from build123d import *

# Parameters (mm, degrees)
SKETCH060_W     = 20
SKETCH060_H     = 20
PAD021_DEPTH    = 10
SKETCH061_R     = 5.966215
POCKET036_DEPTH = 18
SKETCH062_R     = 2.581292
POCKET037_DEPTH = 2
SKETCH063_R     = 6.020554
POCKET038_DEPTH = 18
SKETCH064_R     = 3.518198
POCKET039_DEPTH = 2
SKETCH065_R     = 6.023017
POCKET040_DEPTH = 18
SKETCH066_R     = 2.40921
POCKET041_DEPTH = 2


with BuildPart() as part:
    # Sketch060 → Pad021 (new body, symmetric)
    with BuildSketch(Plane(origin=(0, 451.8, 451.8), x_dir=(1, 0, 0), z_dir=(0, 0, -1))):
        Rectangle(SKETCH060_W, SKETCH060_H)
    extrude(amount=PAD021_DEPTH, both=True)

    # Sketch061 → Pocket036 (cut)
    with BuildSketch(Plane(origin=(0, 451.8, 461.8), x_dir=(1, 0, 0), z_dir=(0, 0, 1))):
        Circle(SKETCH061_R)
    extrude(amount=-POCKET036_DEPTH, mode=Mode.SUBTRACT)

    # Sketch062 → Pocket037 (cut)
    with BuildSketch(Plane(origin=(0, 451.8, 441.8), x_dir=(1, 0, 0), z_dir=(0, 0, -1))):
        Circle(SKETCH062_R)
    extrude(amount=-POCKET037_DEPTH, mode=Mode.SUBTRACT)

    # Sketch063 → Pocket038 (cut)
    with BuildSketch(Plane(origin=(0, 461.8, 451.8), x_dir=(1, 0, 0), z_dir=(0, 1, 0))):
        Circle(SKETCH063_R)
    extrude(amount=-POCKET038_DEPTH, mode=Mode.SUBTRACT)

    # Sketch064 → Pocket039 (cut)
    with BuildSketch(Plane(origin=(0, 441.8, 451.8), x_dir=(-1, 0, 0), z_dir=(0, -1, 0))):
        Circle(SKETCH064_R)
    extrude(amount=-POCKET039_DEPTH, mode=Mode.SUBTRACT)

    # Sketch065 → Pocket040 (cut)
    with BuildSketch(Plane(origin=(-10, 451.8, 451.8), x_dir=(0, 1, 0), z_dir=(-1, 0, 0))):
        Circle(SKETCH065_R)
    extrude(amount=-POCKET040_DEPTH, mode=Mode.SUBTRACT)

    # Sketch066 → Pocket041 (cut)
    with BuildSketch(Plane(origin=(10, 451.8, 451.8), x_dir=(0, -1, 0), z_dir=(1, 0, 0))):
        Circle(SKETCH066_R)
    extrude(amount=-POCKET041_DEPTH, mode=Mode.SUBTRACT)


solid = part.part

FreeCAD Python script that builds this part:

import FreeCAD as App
import Part
import Sketcher
Q = App.Units.Quantity


def add_polygon(sketch, points):
    """Adds a closed chain of lines whose ends are joined by coincident constraints."""
    first, n = sketch.GeometryCount, len(points)
    for a, b in zip(points, points[1:] + points[:1]):
        sketch.addGeometry(Part.LineSegment(App.Vector(*a, 0), App.Vector(*b, 0)), False)
    for i in range(n):
        sketch.addConstraint(Sketcher.Constraint("Coincident", first + i, 2, first + (i + 1) % n, 1))

doc = App.newDocument("Part")
params = doc.addObject("Spreadsheet::Sheet", "Params")
for row, (alias, value) in enumerate([
    ("sketch1_width", "20 mm"),
    ("pad1_length", "20 mm"),
    ("pocket1_length", "18 mm"),
    ("pocket2_length", "2 mm"),
    ("pocket3_length", "18 mm"),
    ("pocket4_length", "2 mm"),
    ("pocket5_length", "18 mm"),
    ("pocket6_length", "2 mm"),
], start=1):
    params.set(f"A{row}", alias)
    params.set(f"B{row}", "=" + value)
    params.setAlias(f"B{row}", alias)

body = doc.addObject("PartDesign::Body", "Body")

sketch1 = body.newObject("Sketcher::SketchObject", "Sketch")
sketch1.AttachmentSupport = (doc.getObject("XY_Plane"), [""])
sketch1.MapMode = "FlatFace"
sketch1.AttachmentOffset = App.Placement(App.Vector(0, 0, 451.8), App.Rotation())
add_polygon(sketch1, [(-10, 441.8), (-10, 461.8), (10, 461.8), (10, 441.8)])
sketch1.addConstraint([
    Sketcher.Constraint("Vertical", 0),
    Sketcher.Constraint("Horizontal", 1),
    Sketcher.Constraint("Vertical", 2),
    Sketcher.Constraint("Horizontal", 3),
    Sketcher.Constraint("Equal", 3, 0),
    Sketcher.Constraint("DistanceX", 1, 1, 1, 2, Q("20 mm")),
    Sketcher.Constraint("DistanceX", 0, 2, -1, 1, Q("10 mm")),
    Sketcher.Constraint("DistanceY", -1, 1, 0, 2, Q("461.8 mm")),
])
sketch1.setExpression("Constraints[9]", "Params.sketch1_width")
pad1 = body.newObject("PartDesign::Pad", "Pad")
pad1.Profile = sketch1
pad1.setExpression("Length", "Params.pad1_length")
pad1.Midplane = True

sketch2 = body.newObject("Sketcher::SketchObject", "Sketch001")
sketch2.AttachmentSupport = (doc.getObject("XY_Plane"), [""])
sketch2.MapMode = "FlatFace"
sketch2.AttachmentOffset = App.Placement(App.Vector(0, 0, 461.8), App.Rotation())
sketch2.addGeometry(Part.Circle(App.Vector(0, 451.8, 0), App.Vector(0, 0, 1), 5.966215), False)
sketch2.addConstraint([
    Sketcher.Constraint("PointOnObject", 0, 3, -2),
    Sketcher.Constraint("DistanceY", -1, 1, 0, 3, Q("451.8 mm")),
    Sketcher.Constraint("Diameter", 0, Q("11.93243 mm")),
])
pocket1 = body.newObject("PartDesign::Pocket", "Pocket")
pocket1.Profile = sketch2
pocket1.setExpression("Length", "Params.pocket1_length")

sketch3 = body.newObject("Sketcher::SketchObject", "Sketch002")
sketch3.AttachmentSupport = (doc.getObject("XY_Plane"), [""])
sketch3.MapMode = "FlatFace"
sketch3.AttachmentOffset = App.Placement(App.Vector(0, 0, 441.8), App.Rotation())
sketch3.addGeometry(Part.Circle(App.Vector(0, 451.8, 0), App.Vector(0, 0, 1), 2.581292), False)
sketch3.addConstraint([
    Sketcher.Constraint("PointOnObject", 0, 3, -2),
    Sketcher.Constraint("DistanceY", -1, 1, 0, 3, Q("451.8 mm")),
    Sketcher.Constraint("Diameter", 0, Q("5.162584 mm")),
])
pocket2 = body.newObject("PartDesign::Pocket", "Pocket001")
pocket2.Profile = sketch3
pocket2.setExpression("Length", "Params.pocket2_length")
pocket2.Reversed = True

sketch4 = body.newObject("Sketcher::SketchObject", "Sketch003")
sketch4.AttachmentSupport = (doc.getObject("XZ_Plane"), [""])
sketch4.MapMode = "FlatFace"
sketch4.AttachmentOffset = App.Placement(App.Vector(0, 0, -461.8), App.Rotation())
sketch4.addGeometry(Part.Circle(App.Vector(0, 451.8, 0), App.Vector(0, 0, 1), 6.020554), False)
sketch4.addConstraint([
    Sketcher.Constraint("PointOnObject", 0, 3, -2),
    Sketcher.Constraint("DistanceY", -1, 1, 0, 3, Q("451.8 mm")),
    Sketcher.Constraint("Diameter", 0, Q("12.041108 mm")),
])
pocket3 = body.newObject("PartDesign::Pocket", "Pocket002")
pocket3.Profile = sketch4
pocket3.setExpression("Length", "Params.pocket3_length")
pocket3.Reversed = True

sketch5 = body.newObject("Sketcher::SketchObject", "Sketch004")
sketch5.AttachmentSupport = (doc.getObject("XZ_Plane"), [""])
sketch5.MapMode = "FlatFace"
sketch5.AttachmentOffset = App.Placement(App.Vector(0, 0, -441.8), App.Rotation())
sketch5.addGeometry(Part.Circle(App.Vector(0, 451.8, 0), App.Vector(0, 0, 1), 3.518198), False)
sketch5.addConstraint([
    Sketcher.Constraint("PointOnObject", 0, 3, -2),
    Sketcher.Constraint("DistanceY", -1, 1, 0, 3, Q("451.8 mm")),
    Sketcher.Constraint("Diameter", 0, Q("7.036396 mm")),
])
pocket4 = body.newObject("PartDesign::Pocket", "Pocket003")
pocket4.Profile = sketch5
pocket4.setExpression("Length", "Params.pocket4_length")

sketch6 = body.newObject("Sketcher::SketchObject", "Sketch005")
sketch6.AttachmentSupport = (doc.getObject("YZ_Plane"), [""])
sketch6.MapMode = "FlatFace"
sketch6.AttachmentOffset = App.Placement(App.Vector(0, 0, -10), App.Rotation())
sketch6.addGeometry(Part.Circle(App.Vector(451.8, 451.8, 0), App.Vector(0, 0, 1), 6.023017), False)
sketch6.addConstraint([
    Sketcher.Constraint("DistanceX", -1, 1, 0, 3, Q("451.8 mm")),
    Sketcher.Constraint("DistanceY", -1, 1, 0, 3, Q("451.8 mm")),
    Sketcher.Constraint("Diameter", 0, Q("12.046034 mm")),
])
pocket5 = body.newObject("PartDesign::Pocket", "Pocket004")
pocket5.Profile = sketch6
pocket5.setExpression("Length", "Params.pocket5_length")
pocket5.Reversed = True

sketch7 = body.newObject("Sketcher::SketchObject", "Sketch006")
sketch7.AttachmentSupport = (doc.getObject("YZ_Plane"), [""])
sketch7.MapMode = "FlatFace"
sketch7.AttachmentOffset = App.Placement(App.Vector(0, 0, 10), App.Rotation())
sketch7.addGeometry(Part.Circle(App.Vector(451.8, 451.8, 0), App.Vector(0, 0, 1), 2.40921), False)
sketch7.addConstraint([
    Sketcher.Constraint("DistanceX", -1, 1, 0, 3, Q("451.8 mm")),
    Sketcher.Constraint("DistanceY", -1, 1, 0, 3, Q("451.8 mm")),
    Sketcher.Constraint("Diameter", 0, Q("4.81842 mm")),
])
pocket6 = body.newObject("PartDesign::Pocket", "Pocket005")
pocket6.Profile = sketch7
pocket6.setExpression("Length", "Params.pocket6_length")

doc.recompute()
